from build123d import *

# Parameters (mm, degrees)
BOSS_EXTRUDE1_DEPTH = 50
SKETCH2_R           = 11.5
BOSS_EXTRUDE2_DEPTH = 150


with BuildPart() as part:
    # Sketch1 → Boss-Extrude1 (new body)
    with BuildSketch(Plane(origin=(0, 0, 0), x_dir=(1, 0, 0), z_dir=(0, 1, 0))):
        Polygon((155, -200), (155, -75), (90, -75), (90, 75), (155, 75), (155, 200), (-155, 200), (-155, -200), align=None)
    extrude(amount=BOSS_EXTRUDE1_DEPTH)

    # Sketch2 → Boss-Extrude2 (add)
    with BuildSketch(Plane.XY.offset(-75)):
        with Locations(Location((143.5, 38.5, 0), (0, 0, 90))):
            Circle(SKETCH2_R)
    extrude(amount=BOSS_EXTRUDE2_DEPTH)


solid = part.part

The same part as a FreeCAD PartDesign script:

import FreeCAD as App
import Part
import Sketcher


def add_polygon(sketch, points):
    """Adds a closed chain of lines whose ends are joined by coincident constraints."""
    first, n = sketch.GeometryCount, len(points)
    for a, b in zip(points, points[1:] + points[:1]):
        sketch.addGeometry(Part.LineSegment(App.Vector(*a, 0), App.Vector(*b, 0)), False)
    for i in range(n):
        sketch.addConstraint(Sketcher.Constraint("Coincident", first + i, 2, first + (i + 1) % n, 1))

doc = App.newDocument("Part")
body = doc.addObject("PartDesign::Body", "Body")

# Sketch on XZ plane
sketch1 = body.newObject("Sketcher::SketchObject", "Sketch")
sketch1.AttachmentSupport = (doc.getObject("XZ_Plane"), [""])
sketch1.MapMode = "FlatFace"
add_polygon(sketch1, [(155, 200), (155, 75), (90, 75), (90, -75), (155, -75), (155, -200), (-155, -200), (-155, 200)])  # lines 0-7
sketch1.addConstraint(Sketcher.Constraint("Vertical", 0))
sketch1.addConstraint(Sketcher.Constraint("Horizontal", 1))
sketch1.addConstraint(Sketcher.Constraint("Vertical", 2))
sketch1.addConstraint(Sketcher.Constraint("Horizontal", 3))
sketch1.addConstraint(Sketcher.Constraint("Vertical", 4))
sketch1.addConstraint(Sketcher.Constraint("Horizontal", 5))
sketch1.addConstraint(Sketcher.Constraint("Vertical", 6))
sketch1.addConstraint(Sketcher.Constraint("Horizontal", 7))
sketch1.addConstraint(Sketcher.Constraint("Symmetric", 4, 2, 6, 2, -1, 1))
sketch1.addConstraint(Sketcher.Constraint("Symmetric", 0, 2, 3, 2, -1))
sketch1.addConstraint(Sketcher.Constraint("DistanceX", 1, 2, 1, 1, 65.0))
sketch1.addConstraint(Sketcher.Constraint("DistanceX", 5, 2, 5, 1, 310.0))
sketch1.addConstraint(Sketcher.Constraint("DistanceY", 0, 2, 0, 1, 125.0))
sketch1.addConstraint(Sketcher.Constraint("DistanceY", 2, 2, 2, 1, 150.0))
pad1 = body.newObject("PartDesign::Pad", "Pad")
pad1.Profile = sketch1
pad1.Length = 50
pad1.Reversed = True

# Sketch on XY plane
sketch2 = body.newObject("Sketcher::SketchObject", "Sketch001")
sketch2.AttachmentSupport = (doc.getObject("XY_Plane"), [""])
sketch2.MapMode = "FlatFace"
sketch2.AttachmentOffset = App.Placement(App.Vector(0, 0, -75), App.Rotation())
sketch2.addGeometry(Part.Circle(App.Vector(144, 38, 0), App.Vector(0, 0, 1), 12), False)
sketch2.addConstraint(Sketcher.Constraint("Diameter", 0, 23.0))
sketch2.addConstraint(Sketcher.Constraint("DistanceX", -1, 1, 0, 3, 143.5))
sketch2.addConstraint(Sketcher.Constraint("DistanceY", -1, 1, 0, 3, 38.5))
pad2 = body.newObject("PartDesign::Pad", "Pad001")
pad2.Profile = sketch2
pad2.Length = 150

doc.recompute()
